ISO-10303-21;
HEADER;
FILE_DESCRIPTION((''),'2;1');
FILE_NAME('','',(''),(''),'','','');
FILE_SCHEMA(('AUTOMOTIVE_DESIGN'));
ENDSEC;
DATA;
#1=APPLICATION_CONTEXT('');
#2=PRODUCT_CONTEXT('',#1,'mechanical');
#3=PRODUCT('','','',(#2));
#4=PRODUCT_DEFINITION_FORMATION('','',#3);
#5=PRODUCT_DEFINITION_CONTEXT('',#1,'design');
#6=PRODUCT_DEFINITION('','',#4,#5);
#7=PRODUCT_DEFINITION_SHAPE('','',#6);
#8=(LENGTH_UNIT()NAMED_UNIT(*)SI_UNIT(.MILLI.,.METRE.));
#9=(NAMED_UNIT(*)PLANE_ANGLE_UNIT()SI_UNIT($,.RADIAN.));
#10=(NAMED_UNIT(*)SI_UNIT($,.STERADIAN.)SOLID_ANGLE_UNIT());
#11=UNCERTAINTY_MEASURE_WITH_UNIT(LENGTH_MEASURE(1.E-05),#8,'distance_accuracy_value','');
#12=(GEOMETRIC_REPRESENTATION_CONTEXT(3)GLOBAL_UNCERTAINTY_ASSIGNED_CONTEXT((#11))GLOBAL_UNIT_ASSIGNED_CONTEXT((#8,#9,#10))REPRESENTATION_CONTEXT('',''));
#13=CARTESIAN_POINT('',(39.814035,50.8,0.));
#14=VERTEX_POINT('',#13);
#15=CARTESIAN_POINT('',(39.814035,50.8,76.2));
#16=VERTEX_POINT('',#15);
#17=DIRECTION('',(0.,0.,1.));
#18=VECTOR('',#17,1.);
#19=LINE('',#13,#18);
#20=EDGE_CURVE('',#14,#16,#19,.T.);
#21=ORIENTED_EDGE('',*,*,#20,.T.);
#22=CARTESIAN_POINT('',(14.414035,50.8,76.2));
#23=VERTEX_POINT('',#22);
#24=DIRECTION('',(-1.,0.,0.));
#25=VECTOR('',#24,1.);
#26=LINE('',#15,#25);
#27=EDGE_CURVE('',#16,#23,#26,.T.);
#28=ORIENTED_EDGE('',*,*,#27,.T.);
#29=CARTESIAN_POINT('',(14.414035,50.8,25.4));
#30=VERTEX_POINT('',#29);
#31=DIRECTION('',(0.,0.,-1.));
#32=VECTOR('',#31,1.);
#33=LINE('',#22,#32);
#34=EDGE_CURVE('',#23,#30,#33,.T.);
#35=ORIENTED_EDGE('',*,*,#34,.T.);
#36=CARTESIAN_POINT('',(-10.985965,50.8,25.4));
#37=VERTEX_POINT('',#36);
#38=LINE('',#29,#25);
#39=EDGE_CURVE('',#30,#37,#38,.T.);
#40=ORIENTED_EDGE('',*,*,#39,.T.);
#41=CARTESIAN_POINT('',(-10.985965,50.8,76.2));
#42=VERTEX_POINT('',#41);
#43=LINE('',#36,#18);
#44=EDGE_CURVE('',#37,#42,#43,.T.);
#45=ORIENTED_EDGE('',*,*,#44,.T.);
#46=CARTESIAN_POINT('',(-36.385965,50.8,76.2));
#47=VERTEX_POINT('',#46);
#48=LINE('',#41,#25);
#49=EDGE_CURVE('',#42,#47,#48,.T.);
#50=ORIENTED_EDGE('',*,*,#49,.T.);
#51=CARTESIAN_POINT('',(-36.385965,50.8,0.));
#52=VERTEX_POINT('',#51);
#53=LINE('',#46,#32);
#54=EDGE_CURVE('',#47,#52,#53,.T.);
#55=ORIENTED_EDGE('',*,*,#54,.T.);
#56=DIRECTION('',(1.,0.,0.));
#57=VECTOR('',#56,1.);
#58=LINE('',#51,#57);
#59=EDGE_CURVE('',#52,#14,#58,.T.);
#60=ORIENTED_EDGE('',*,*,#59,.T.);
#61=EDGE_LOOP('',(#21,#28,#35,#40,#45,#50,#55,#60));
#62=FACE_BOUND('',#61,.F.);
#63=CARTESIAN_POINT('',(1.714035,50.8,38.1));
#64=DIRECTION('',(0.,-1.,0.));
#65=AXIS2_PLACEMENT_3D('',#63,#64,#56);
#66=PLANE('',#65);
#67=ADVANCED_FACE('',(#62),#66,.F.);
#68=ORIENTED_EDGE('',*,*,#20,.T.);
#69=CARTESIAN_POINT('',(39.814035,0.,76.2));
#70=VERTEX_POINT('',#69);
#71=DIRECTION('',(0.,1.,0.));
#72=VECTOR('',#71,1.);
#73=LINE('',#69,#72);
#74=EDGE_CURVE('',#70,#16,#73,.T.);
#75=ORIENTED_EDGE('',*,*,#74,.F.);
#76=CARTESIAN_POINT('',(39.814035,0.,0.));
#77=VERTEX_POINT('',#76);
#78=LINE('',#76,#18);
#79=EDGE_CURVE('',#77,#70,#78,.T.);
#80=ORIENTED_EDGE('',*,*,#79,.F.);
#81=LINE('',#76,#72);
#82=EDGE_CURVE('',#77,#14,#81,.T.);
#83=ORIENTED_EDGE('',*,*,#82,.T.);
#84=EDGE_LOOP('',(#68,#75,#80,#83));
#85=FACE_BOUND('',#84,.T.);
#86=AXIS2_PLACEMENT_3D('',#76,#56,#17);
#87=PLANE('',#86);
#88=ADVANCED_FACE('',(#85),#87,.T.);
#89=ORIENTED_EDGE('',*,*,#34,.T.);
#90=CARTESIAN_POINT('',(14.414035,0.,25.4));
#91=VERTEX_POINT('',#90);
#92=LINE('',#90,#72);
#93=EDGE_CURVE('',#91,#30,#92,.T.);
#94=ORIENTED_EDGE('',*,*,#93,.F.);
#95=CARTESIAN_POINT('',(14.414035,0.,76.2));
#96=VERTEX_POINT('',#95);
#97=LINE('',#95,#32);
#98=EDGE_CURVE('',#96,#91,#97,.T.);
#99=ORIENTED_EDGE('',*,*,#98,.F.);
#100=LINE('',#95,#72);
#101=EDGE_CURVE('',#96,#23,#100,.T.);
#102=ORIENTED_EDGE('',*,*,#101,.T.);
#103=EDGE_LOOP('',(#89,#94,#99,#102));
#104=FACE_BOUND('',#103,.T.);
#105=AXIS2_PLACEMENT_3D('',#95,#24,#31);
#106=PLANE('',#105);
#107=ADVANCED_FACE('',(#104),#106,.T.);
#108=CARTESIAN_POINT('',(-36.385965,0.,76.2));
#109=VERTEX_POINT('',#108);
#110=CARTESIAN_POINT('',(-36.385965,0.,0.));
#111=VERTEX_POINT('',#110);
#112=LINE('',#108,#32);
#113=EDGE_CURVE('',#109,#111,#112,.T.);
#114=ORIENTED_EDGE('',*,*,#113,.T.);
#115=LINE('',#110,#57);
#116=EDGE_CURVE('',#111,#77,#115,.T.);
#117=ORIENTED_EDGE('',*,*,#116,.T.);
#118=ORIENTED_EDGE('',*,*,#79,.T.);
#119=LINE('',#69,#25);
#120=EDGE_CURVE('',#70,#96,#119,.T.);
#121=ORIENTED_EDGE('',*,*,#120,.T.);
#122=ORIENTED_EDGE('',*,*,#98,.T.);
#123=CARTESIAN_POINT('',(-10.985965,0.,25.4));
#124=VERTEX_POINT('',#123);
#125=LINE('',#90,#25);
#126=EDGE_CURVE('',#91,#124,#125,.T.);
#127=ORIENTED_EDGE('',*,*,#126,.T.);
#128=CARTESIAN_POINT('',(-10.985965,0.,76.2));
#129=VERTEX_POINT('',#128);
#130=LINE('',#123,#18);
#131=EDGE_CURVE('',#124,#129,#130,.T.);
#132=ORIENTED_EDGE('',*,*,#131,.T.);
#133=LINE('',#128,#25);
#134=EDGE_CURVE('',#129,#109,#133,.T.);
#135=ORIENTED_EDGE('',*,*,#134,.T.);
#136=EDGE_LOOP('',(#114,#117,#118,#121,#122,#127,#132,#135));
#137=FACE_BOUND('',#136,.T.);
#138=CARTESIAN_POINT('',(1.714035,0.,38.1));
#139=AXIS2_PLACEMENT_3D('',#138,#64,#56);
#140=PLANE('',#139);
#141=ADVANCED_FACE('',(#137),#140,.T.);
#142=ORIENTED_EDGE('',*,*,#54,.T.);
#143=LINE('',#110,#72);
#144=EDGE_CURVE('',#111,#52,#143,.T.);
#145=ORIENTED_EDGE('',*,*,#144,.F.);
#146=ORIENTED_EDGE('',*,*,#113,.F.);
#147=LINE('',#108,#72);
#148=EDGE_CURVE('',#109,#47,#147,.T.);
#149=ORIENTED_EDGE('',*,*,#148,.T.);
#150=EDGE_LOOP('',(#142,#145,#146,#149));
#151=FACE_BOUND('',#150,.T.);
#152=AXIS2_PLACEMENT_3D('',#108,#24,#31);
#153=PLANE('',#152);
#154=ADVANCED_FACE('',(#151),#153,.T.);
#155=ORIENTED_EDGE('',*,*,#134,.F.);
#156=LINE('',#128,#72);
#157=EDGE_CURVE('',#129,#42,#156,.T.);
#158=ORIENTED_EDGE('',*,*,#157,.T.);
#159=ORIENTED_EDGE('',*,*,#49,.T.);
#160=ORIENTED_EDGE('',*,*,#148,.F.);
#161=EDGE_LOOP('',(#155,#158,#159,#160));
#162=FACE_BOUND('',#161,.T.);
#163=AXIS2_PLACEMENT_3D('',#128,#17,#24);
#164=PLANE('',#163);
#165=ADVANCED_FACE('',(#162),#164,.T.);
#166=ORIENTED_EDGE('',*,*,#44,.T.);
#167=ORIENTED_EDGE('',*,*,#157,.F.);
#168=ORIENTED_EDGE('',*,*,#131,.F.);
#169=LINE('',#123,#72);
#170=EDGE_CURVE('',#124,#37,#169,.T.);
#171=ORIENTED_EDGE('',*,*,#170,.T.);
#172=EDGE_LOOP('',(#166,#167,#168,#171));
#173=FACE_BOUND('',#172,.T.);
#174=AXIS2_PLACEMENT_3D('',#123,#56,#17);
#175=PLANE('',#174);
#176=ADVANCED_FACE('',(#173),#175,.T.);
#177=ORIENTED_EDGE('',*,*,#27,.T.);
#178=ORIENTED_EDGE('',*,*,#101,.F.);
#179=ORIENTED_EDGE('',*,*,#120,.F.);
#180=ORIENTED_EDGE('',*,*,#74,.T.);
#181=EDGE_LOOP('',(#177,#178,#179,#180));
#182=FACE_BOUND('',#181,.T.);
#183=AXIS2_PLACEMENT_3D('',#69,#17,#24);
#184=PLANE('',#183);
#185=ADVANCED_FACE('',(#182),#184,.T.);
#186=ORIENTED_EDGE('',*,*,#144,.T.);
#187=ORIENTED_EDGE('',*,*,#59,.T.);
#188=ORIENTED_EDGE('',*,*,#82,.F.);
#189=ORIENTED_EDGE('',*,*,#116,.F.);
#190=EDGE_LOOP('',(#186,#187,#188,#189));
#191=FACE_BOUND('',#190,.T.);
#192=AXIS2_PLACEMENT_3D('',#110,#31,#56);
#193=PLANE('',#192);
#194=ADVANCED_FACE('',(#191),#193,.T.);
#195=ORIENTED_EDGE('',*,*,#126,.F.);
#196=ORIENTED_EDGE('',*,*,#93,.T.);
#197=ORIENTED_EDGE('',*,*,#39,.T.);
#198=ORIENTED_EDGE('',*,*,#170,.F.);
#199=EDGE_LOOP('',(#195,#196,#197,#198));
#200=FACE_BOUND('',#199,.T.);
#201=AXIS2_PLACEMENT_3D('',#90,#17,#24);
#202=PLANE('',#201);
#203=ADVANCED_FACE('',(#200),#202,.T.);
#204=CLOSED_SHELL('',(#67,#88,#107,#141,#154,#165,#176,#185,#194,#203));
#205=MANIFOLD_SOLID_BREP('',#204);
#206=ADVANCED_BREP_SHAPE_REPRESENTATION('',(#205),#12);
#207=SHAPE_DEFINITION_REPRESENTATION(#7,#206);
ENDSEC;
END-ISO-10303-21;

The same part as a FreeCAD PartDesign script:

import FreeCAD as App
import Part
import Sketcher

V = App.Vector
Q = App.Units.Quantity

doc = App.newDocument("Part")
body = doc.addObject("PartDesign::Body", "Body")

# Sketch on XZ plane
sketch1 = body.newObject("Sketcher::SketchObject", "Sketch")
sketch1.AttachmentSupport = (doc.getObject("XZ_Plane"), [""])
sketch1.MapMode = "FlatFace"
sketch1.addGeometry([
    Part.LineSegment(V(-36, 0, 0), V(40, 0, 0)),  # 0
    Part.LineSegment(V(40, 0, 0), V(40, 76, 0)),  # 1
    Part.LineSegment(V(40, 76, 0), V(14, 76, 0)),  # 2
    Part.LineSegment(V(14, 76, 0), V(14, 25, 0)),  # 3
    Part.LineSegment(V(14, 25, 0), V(-11, 25, 0)),  # 4
    Part.LineSegment(V(-11, 25, 0), V(-11, 76, 0)),  # 5
    Part.LineSegment(V(-11, 76, 0), V(-36, 76, 0)),  # 6
    Part.LineSegment(V(-36, 76, 0), V(-36, 0, 0)),  # 7
], False)
sketch1.addConstraint([
    Sketcher.Constraint("Coincident", 0, 2, 1, 1),
    Sketcher.Constraint("Coincident", 1, 2, 2, 1),
    Sketcher.Constraint("Coincident", 2, 2, 3, 1),
    Sketcher.Constraint("Coincident", 3, 2, 4, 1),
    Sketcher.Constraint("Coincident", 4, 2, 5, 1),
    Sketcher.Constraint("Coincident", 5, 2, 6, 1),
    Sketcher.Constraint("Coincident", 6, 2, 7, 1),
    Sketcher.Constraint("Coincident", 7, 2, 0, 1),
    Sketcher.Constraint("Horizontal", 0),
    Sketcher.Constraint("Vertical", 1),
    Sketcher.Constraint("Horizontal", 2),
    Sketcher.Constraint("Vertical", 3),
    Sketcher.Constraint("Horizontal", 4),
    Sketcher.Constraint("Vertical", 5),
    Sketcher.Constraint("Horizontal", 6),
    Sketcher.Constraint("Vertical", 7),
    Sketcher.Constraint("PointOnObject", 0, 2, -1),
    Sketcher.Constraint("Horizontal", 2, 2, 5, 2),
    Sketcher.Constraint("Equal", 2, 4),
    Sketcher.Constraint("Equal", 4, 6),
    Sketcher.Constraint("Equal", 0, 1),
    Sketcher.Constraint("DistanceX", 0, 1, 0, 2, Q("3 in")),
    Sketcher.Constraint("DistanceY", 3, 2, 3, 1, Q("2 in")),
    Sketcher.Constraint("DistanceX", -1, 1, 0, 2, 39.814035),
])
pad1 = body.newObject("PartDesign::Pad", "Pad")
pad1.Profile = sketch1
pad1.Length = Q("2 in")
pad1.Reversed = True

doc.recompute()
